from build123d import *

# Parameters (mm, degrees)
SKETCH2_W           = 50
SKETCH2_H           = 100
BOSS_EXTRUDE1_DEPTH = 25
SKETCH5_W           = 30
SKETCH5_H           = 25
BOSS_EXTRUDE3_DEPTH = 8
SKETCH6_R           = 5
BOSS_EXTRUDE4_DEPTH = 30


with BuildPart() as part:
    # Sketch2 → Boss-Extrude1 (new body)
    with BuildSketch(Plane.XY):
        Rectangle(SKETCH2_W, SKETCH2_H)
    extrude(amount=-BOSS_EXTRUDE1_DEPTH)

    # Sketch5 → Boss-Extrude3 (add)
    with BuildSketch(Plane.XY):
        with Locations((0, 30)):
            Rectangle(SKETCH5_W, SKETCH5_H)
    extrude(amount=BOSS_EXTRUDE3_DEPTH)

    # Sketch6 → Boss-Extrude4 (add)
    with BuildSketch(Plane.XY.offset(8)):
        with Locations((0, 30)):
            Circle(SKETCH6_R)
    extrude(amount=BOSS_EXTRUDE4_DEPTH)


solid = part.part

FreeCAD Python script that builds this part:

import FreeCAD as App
import Part
import Sketcher

V = App.Vector
Q = App.Units.Quantity

doc = App.newDocument("Part")
body = doc.addObject("PartDesign::Body", "Body")

# Sketch on XY plane
sketch1 = body.newObject("Sketcher::SketchObject", "Sketch")
sketch1.AttachmentSupport = (doc.getObject("XY_Plane"), [""])
sketch1.MapMode = "FlatFace"
sketch1.addGeometry([
    Part.LineSegment(V(-25, 50, 0), V(-25, -50, 0)),
    Part.LineSegment(V(-25, -50, 0), V(25, -50, 0)),
    Part.LineSegment(V(25, -50, 0), V(25, 50, 0)),
    Part.LineSegment(V(25, 50, 0), V(-25, 50, 0)),
], False)
sketch1.addConstraint([
    Sketcher.Constraint("Coincident", 0, 2, 1, 1),
    Sketcher.Constraint("Coincident", 1, 2, 2, 1),
    Sketcher.Constraint("Coincident", 2, 2, 3, 1),
    Sketcher.Constraint("Coincident", 3, 2, 0, 1),
    Sketcher.Constraint("Vertical", 0),
    Sketcher.Constraint("Horizontal", 1),
    Sketcher.Constraint("Vertical", 2),
    Sketcher.Constraint("Horizontal", 3),
    Sketcher.Constraint("Symmetric", 0, 2, 2, 2, -1, 1),
    Sketcher.Constraint("DistanceX", 1, 1, 1, 2, Q("50 mm")),
    Sketcher.Constraint("DistanceY", 0, 2, 0, 1, Q("100 mm")),
])
pad1 = body.newObject("PartDesign::Pad", "Pad")
pad1.Profile = sketch1
pad1.Length = 25
pad1.Reversed = True

# Sketch on XY plane
sketch2 = body.newObject("Sketcher::SketchObject", "Sketch001")
sketch2.AttachmentSupport = (doc.getObject("XY_Plane"), [""])
sketch2.MapMode = "FlatFace"
sketch2.addGeometry([
    Part.LineSegment(V(-15, 42, 0), V(-15, 18, 0)),
    Part.LineSegment(V(-15, 18, 0), V(15, 18, 0)),
    Part.LineSegment(V(15, 18, 0), V(15, 42, 0)),
    Part.LineSegment(V(15, 42, 0), V(-15, 42, 0)),
], False)
sketch2.addConstraint([
    Sketcher.Constraint("Coincident", 0, 2, 1, 1),
    Sketcher.Constraint("Coincident", 1, 2, 2, 1),
    Sketcher.Constraint("Coincident", 2, 2, 3, 1),
    Sketcher.Constraint("Coincident", 3, 2, 0, 1),
    Sketcher.Constraint("Vertical", 0),
    Sketcher.Constraint("Horizontal", 1),
    Sketcher.Constraint("Vertical", 2),
    Sketcher.Constraint("Horizontal", 3),
    Sketcher.Constraint("DistanceX", 1, 1, 1, 2, Q("30 mm")),
    Sketcher.Constraint("DistanceY", 0, 2, 0, 1, Q("25 mm")),
    Sketcher.Constraint("DistanceX", 0, 2, -1, 1, Q("15 mm")),
    Sketcher.Constraint("DistanceY", -1, 1, 0, 2, Q("17.5 mm")),
])
pad2 = body.newObject("PartDesign::Pad", "Pad001")
pad2.Profile = sketch2
pad2.Length = 8

# Sketch on XY plane
sketch3 = body.newObject("Sketcher::SketchObject", "Sketch002")
sketch3.AttachmentSupport = (doc.getObject("XY_Plane"), [""])
sketch3.MapMode = "FlatFace"
sketch3.AttachmentOffset = App.Placement(V(0, 0, 8), App.Rotation())
sketch3.addGeometry(Part.Circle(V(0, 30, 0), V(0, 0, 1), 5), False)
sketch3.addConstraint([
    Sketcher.Constraint("PointOnObject", 0, 3, -2),
    Sketcher.Constraint("Diameter", 0, Q("10 mm")),
    Sketcher.Constraint("DistanceY", -1, 1, 0, 3, Q("30 mm")),
])
pad3 = body.newObject("PartDesign::Pad", "Pad002")
pad3.Profile = sketch3
pad3.Length = 30

doc.recompute()
